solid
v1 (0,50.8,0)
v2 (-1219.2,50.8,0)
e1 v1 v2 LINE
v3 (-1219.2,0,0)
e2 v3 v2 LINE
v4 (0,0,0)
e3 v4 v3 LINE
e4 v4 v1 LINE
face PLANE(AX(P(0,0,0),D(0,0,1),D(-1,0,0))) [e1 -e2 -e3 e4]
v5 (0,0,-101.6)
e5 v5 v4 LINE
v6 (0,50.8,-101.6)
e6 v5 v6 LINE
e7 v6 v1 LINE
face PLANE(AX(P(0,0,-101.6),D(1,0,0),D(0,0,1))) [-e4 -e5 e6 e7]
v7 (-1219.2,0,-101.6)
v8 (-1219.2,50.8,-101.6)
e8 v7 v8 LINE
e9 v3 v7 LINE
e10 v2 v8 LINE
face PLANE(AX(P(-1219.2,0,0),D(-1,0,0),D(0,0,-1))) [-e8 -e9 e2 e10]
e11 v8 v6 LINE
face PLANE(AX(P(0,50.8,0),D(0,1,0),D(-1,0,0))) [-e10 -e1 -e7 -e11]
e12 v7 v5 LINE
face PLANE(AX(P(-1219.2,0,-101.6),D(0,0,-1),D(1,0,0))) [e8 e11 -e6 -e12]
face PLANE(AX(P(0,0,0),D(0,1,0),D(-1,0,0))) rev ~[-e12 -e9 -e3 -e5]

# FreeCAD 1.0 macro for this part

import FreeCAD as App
import Part
import Sketcher
from FreeCAD import Vector
Q = App.Units.Quantity

doc = App.newDocument("Part")
body = doc.addObject("PartDesign::Body", "Body")

sketch1 = body.newObject("Sketcher::SketchObject", "Sketch")
sketch1.AttachmentSupport = (doc.getObject("XZ_Plane"), [""])
sketch1.MapMode = "FlatFace"
sketch1.addGeometry(Part.LineSegment(Vector(-1219.2, 0, 0), Vector(0, 0, 0)), False)
sketch1.addGeometry(Part.LineSegment(Vector(0, 0, 0), Vector(0, -101.6, 0)), False)
sketch1.addGeometry(Part.LineSegment(Vector(0, -101.6, 0), Vector(-1219.2, -101.6, 0)), False)
sketch1.addGeometry(Part.LineSegment(Vector(-1219.2, -101.6, 0), Vector(-1219.2, 0, 0)), False)
sketch1.addConstraint(Sketcher.Constraint("Coincident", 0, 2, 1, 1))
sketch1.addConstraint(Sketcher.Constraint("Coincident", 1, 2, 2, 1))
sketch1.addConstraint(Sketcher.Constraint("Coincident", 2, 2, 3, 1))
sketch1.addConstraint(Sketcher.Constraint("Coincident", 3, 2, 0, 1))
sketch1.addConstraint(Sketcher.Constraint("Horizontal", 0))
sketch1.addConstraint(Sketcher.Constraint("Vertical", 1))
sketch1.addConstraint(Sketcher.Constraint("Horizontal", 2))
sketch1.addConstraint(Sketcher.Constraint("Vertical", 3))
sketch1.addConstraint(Sketcher.Constraint("Coincident", 0, 2, -1, 1))
sketch1.addConstraint(Sketcher.Constraint("DistanceX", 0, 1, 0, 2, Q("48 in")))
sketch1.addConstraint(Sketcher.Constraint("DistanceY", 1, 2, 1, 1, Q("4 in")))
pad1 = body.newObject("PartDesign::Pad", "Pad")
pad1.Profile = sketch1
pad1.Length = Q("2 in")
pad1.Reversed = True

doc.recompute()
